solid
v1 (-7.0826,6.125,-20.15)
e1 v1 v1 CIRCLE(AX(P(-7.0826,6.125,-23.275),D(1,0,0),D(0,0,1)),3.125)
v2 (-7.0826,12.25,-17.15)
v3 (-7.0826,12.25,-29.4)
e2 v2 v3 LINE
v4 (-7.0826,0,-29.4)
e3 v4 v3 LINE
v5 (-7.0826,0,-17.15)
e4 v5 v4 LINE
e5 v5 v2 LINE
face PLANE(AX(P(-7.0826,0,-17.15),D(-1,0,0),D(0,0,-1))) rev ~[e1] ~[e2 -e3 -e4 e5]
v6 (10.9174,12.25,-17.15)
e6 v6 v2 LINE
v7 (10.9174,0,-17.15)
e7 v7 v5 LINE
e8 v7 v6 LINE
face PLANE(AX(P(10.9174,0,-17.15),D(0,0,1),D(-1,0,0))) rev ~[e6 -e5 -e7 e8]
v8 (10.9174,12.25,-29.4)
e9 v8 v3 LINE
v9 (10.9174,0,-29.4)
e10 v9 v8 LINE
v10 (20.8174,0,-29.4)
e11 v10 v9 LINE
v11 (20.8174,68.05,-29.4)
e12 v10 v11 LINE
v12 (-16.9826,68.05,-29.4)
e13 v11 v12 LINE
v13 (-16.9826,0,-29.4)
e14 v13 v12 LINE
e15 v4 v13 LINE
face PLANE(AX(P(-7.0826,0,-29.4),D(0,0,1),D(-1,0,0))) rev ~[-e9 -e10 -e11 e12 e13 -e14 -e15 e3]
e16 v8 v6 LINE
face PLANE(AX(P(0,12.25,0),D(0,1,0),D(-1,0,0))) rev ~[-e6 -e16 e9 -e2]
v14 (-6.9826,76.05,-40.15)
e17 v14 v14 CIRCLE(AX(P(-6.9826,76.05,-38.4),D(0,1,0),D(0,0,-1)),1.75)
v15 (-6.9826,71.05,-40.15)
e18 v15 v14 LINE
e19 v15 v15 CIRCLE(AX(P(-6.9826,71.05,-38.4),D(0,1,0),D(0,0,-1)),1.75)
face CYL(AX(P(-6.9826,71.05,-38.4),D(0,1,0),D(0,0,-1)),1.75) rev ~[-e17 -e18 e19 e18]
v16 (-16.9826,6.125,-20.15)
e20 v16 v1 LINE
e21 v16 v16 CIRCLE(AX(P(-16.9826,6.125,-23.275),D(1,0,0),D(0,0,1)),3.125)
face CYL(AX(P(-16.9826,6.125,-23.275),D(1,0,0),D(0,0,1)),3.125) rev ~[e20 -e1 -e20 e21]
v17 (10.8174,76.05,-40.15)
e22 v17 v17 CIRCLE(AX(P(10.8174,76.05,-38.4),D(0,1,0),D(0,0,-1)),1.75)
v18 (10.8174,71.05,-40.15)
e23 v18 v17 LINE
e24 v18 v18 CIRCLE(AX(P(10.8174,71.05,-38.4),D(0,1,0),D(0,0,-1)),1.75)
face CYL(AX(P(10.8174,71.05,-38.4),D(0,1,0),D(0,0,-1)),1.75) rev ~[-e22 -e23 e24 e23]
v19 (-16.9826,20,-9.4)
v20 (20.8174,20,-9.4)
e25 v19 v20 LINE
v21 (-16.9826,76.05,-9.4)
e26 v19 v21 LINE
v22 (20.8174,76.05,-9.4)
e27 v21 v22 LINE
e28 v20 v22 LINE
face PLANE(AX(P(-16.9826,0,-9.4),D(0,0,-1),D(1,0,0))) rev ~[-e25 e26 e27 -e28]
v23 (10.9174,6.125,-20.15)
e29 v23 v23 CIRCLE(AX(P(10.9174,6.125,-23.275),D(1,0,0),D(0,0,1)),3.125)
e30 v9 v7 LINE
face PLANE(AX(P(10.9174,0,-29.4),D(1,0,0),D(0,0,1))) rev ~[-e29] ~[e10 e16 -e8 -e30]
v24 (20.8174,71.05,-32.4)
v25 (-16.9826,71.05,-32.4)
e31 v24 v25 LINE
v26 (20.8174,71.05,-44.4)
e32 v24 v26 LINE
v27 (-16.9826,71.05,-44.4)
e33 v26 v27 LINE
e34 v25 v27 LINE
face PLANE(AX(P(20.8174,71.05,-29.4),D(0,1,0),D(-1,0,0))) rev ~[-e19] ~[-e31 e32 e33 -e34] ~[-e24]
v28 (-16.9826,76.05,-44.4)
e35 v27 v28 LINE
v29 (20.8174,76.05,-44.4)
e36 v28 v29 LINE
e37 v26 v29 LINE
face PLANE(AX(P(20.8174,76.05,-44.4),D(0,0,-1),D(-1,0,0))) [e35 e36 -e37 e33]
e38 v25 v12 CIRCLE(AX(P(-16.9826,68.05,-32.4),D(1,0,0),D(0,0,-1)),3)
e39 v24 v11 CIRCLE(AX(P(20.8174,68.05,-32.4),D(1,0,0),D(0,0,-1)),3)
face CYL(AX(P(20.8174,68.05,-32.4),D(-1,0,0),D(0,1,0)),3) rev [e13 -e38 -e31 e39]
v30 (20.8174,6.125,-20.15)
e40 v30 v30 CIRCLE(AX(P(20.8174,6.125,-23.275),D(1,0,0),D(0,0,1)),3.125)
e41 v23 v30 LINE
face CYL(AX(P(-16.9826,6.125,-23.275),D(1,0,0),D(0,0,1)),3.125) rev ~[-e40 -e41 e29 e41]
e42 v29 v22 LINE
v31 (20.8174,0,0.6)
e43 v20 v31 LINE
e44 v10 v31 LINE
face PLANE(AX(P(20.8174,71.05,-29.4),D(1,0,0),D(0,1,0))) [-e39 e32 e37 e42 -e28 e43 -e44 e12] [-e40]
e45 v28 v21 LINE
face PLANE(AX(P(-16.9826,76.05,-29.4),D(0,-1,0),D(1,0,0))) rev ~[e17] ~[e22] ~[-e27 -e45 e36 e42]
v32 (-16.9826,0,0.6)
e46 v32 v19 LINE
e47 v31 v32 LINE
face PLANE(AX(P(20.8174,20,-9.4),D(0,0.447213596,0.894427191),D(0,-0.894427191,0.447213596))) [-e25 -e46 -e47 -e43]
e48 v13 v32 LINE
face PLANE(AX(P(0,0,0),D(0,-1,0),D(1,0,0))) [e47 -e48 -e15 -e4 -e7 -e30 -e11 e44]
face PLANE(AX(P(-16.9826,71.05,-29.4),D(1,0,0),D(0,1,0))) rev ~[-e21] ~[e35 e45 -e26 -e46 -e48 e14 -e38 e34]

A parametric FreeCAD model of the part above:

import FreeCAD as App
import Part
import Sketcher
from FreeCAD import Vector
Q = App.Units.Quantity


def edges_at(feature, points):
    """Names of the edges that pass closest to the given points."""
    edges = feature.Shape.Edges
    near = lambda p: min(range(len(edges)), key=lambda i: edges[i].distToShape(Part.Vertex(*p))[0])
    return sorted({f"Edge{near(p) + 1}" for p in points})


def add_polygon(sketch, points):
    """Adds a closed chain of lines whose ends are joined by coincident constraints."""
    first, n = sketch.GeometryCount, len(points)
    for a, b in zip(points, points[1:] + points[:1]):
        sketch.addGeometry(Part.LineSegment(App.Vector(*a, 0), App.Vector(*b, 0)), False)
    for i in range(n):
        sketch.addConstraint(Sketcher.Constraint("Coincident", first + i, 2, first + (i + 1) % n, 1))

doc = App.newDocument("Part")
params = doc.addObject("Spreadsheet::Sheet", "Params")
for row, (alias, value) in enumerate([
    ("sketch1_height", "20 mm"),
    ("sketch1_width", "37.8 mm"),
    ("pad1_length", "76.05 mm"),
    ("sketch2_height", "12.25 mm"),
    ("sketch2_width", "18 mm"),
    ("pocket1_length", "12.25 mm"),
    ("sketch3_height", "10 mm"),
    ("sketch3_width", "37.8 mm"),
    ("pad2_length", "20 mm"),
    ("sketch4_height", "10 mm"),
    ("sketch4_width", "20 mm"),
    ("pocket2_length", "50 mm"),
    ("sketch5_height", "5 mm"),
    ("sketch5_width", "37.8 mm"),
    ("pad3_length", "15 mm"),
    ("fillet_radius", "3 mm"),
    ("sketch6_diameter", "6.25 mm"),
    ("hole_diameter", "6.25 mm"),
    ("sketch7_diameter", "3.5 mm"),
    ("hole2_diameter", "3.5 mm"),
], start=1):
    params.set(f"A{row}", alias)
    params.set(f"B{row}", "=" + value)
    params.setAlias(f"B{row}", alias)

body = doc.addObject("PartDesign::Body", "Body")

# Sketch on XZ plane
sketch1 = body.newObject("Sketcher::SketchObject", "Sketch")
sketch1.AttachmentSupport = (doc.getObject("XZ_Plane"), [""])
sketch1.MapMode = "FlatFace"
add_polygon(sketch1, [(-17, -29), (-17, -9), (21, -9), (21, -29)])  # lines 0-3
sketch1.addConstraint(Sketcher.Constraint("Vertical", 0))
sketch1.addConstraint(Sketcher.Constraint("Horizontal", 1))
sketch1.addConstraint(Sketcher.Constraint("Vertical", 2))
sketch1.addConstraint(Sketcher.Constraint("Horizontal", 3))
sketch1.addConstraint(Sketcher.Constraint("DistanceY", 0, 1, 0, 2, Q("20 mm")))
sketch1.addConstraint(Sketcher.Constraint("DistanceX", 1, 1, 1, 2, Q("37.8 mm")))
sketch1.addConstraint(Sketcher.Constraint("DistanceY", 0, 2, -1, 1, Q("9.4 mm")))
sketch1.addConstraint(Sketcher.Constraint("DistanceX", 0, 2, -1, 1, Q("16.9826 mm")))
sketch1.setExpression("Constraints[8]", "Params.sketch1_height")
sketch1.setExpression("Constraints[9]", "Params.sketch1_width")
pad1 = body.newObject("PartDesign::Pad", "Pad")
pad1.Profile = sketch1
pad1.setExpression("Length", "Params.pad1_length")
pad1.Reversed = True

# Sketch on XZ plane
sketch2 = body.newObject("Sketcher::SketchObject", "Sketch001")
sketch2.AttachmentSupport = (doc.getObject("XZ_Plane"), [""])
sketch2.MapMode = "FlatFace"
add_polygon(sketch2, [(11, -29), (-7, -29), (-7, -17), (11, -17)])  # lines 0-3
sketch2.addConstraint(Sketcher.Constraint("Horizontal", 0))
sketch2.addConstraint(Sketcher.Constraint("Vertical", 1))
sketch2.addConstraint(Sketcher.Constraint("Horizontal", 2))
sketch2.addConstraint(Sketcher.Constraint("Vertical", 3))
sketch2.addConstraint(Sketcher.Constraint("DistanceY", 1, 1, 1, 2, Q("12.25 mm")))
sketch2.addConstraint(Sketcher.Constraint("DistanceX", 0, 2, 0, 1, Q("18 mm")))
sketch2.addConstraint(Sketcher.Constraint("DistanceY", 0, 2, -1, 1, Q("29.4 mm")))
sketch2.addConstraint(Sketcher.Constraint("DistanceX", 0, 2, -1, 1, Q("7.0826 mm")))
sketch2.setExpression("Constraints[8]", "Params.sketch2_height")
sketch2.setExpression("Constraints[9]", "Params.sketch2_width")
pocket1 = body.newObject("PartDesign::Pocket", "Pocket")
pocket1.Profile = sketch2
pocket1.setExpression("Length", "Params.pocket1_length")

# Sketch on XZ plane
sketch3 = body.newObject("Sketcher::SketchObject", "Sketch002")
sketch3.AttachmentSupport = (doc.getObject("XZ_Plane"), [""])
sketch3.MapMode = "FlatFace"
add_polygon(sketch3, [(-17, 1), (-17, -9), (21, -9), (21, 1)])  # lines 0-3
sketch3.addConstraint(Sketcher.Constraint("Vertical", 0))
sketch3.addConstraint(Sketcher.Constraint("Horizontal", 1))
sketch3.addConstraint(Sketcher.Constraint("Vertical", 2))
sketch3.addConstraint(Sketcher.Constraint("Horizontal", 3))
sketch3.addConstraint(Sketcher.Constraint("DistanceY", 0, 2, 0, 1, Q("10 mm")))
sketch3.addConstraint(Sketcher.Constraint("DistanceX", 1, 1, 1, 2, Q("37.8 mm")))
sketch3.addConstraint(Sketcher.Constraint("DistanceY", 0, 2, -1, 1, Q("9.4 mm")))
sketch3.addConstraint(Sketcher.Constraint("DistanceX", 0, 2, -1, 1, Q("16.9826 mm")))
sketch3.setExpression("Constraints[8]", "Params.sketch3_height")
sketch3.setExpression("Constraints[9]", "Params.sketch3_width")
pad2 = body.newObject("PartDesign::Pad", "Pad001")
pad2.Profile = sketch3
pad2.setExpression("Length", "Params.pad2_length")
pad2.Reversed = True

# Sketch on YZ plane
sketch4 = body.newObject("Sketcher::SketchObject", "Sketch003")
sketch4.AttachmentSupport = (doc.getObject("YZ_Plane"), [""])
sketch4.MapMode = "FlatFace"
sketch4.AttachmentOffset = App.Placement(Vector(0, 0, 20.8174), App.Rotation())
add_polygon(sketch4, [(20, 1), (0, 1), (20, -9)])  # lines 0-2
sketch4.addConstraint(Sketcher.Constraint("Horizontal", 0))
sketch4.addConstraint(Sketcher.Constraint("Vertical", 2))
sketch4.addConstraint(Sketcher.Constraint("PointOnObject", 0, 2, -2))
sketch4.addConstraint(Sketcher.Constraint("DistanceY", 2, 1, 2, 2, Q("10 mm")))
sketch4.addConstraint(Sketcher.Constraint("DistanceX", 0, 2, 0, 1, Q("20 mm")))
sketch4.addConstraint(Sketcher.Constraint("DistanceY", -1, 1, 0, 2, Q("0.6 mm")))
sketch4.setExpression("Constraints[6]", "Params.sketch4_height")
sketch4.setExpression("Constraints[7]", "Params.sketch4_width")
pocket2 = body.newObject("PartDesign::Pocket", "Pocket001")
pocket2.Profile = sketch4
pocket2.setExpression("Length", "Params.pocket2_length")

# Sketch on XY plane
sketch5 = body.newObject("Sketcher::SketchObject", "Sketch004")
sketch5.AttachmentSupport = (doc.getObject("XY_Plane"), [""])
sketch5.MapMode = "FlatFace"
sketch5.AttachmentOffset = App.Placement(Vector(0, 0, -29.4), App.Rotation())
add_polygon(sketch5, [(21, 76), (21, 71), (-17, 71), (-17, 76)])  # lines 0-3
sketch5.addConstraint(Sketcher.Constraint("Vertical", 0))
sketch5.addConstraint(Sketcher.Constraint("Horizontal", 1))
sketch5.addConstraint(Sketcher.Constraint("Vertical", 2))
sketch5.addConstraint(Sketcher.Constraint("Horizontal", 3))
sketch5.addConstraint(Sketcher.Constraint("DistanceY", 0, 2, 0, 1, Q("5 mm")))
sketch5.addConstraint(Sketcher.Constraint("DistanceX", 1, 2, 1, 1, Q("37.8 mm")))
sketch5.addConstraint(Sketcher.Constraint("DistanceY", -1, 1, 0, 2, Q("71.05 mm")))
sketch5.addConstraint(Sketcher.Constraint("DistanceX", -1, 1, 0, 2, Q("20.8174 mm")))
sketch5.setExpression("Constraints[8]", "Params.sketch5_height")
sketch5.setExpression("Constraints[9]", "Params.sketch5_width")
pad3 = body.newObject("PartDesign::Pad", "Pad002")
pad3.Profile = sketch5
pad3.setExpression("Length", "Params.pad3_length")
pad3.Reversed = True
doc.recompute()

fillet = body.newObject("PartDesign::Fillet", "Fillet")
fillet.Base = (pad3, edges_at(pad3, [(1.917, 71.05, -29.4)]))
fillet.setExpression("Radius", "Params.fillet_radius")

# Sketch on YZ plane
sketch6 = body.newObject("Sketcher::SketchObject", "Sketch005")
sketch6.AttachmentSupport = (doc.getObject("YZ_Plane"), [""])
sketch6.MapMode = "FlatFace"
sketch6.AttachmentOffset = App.Placement(Vector(0, 0, -16.9826), App.Rotation())
sketch6.addGeometry(Part.Circle(Vector(6.1, -23.3, 0), Vector(0, 0, 1), 3.1), False)
sketch6.addConstraint(Sketcher.Constraint("Diameter", 0, Q("6.25 mm")))
sketch6.addConstraint(Sketcher.Constraint("DistanceX", -1, 1, 0, 3, Q("6.125 mm")))
sketch6.addConstraint(Sketcher.Constraint("DistanceY", 0, 3, -1, 1, Q("23.275 mm")))
sketch6.setExpression("Constraints[0]", "Params.sketch6_diameter")
doc.recompute()
hole = body.newObject("PartDesign::Hole", "Hole")
hole.Profile = sketch6
hole.ThreadType = "None"
hole.setExpression("Diameter", "Params.hole_diameter")
hole.DepthType = "ThroughAll"
hole.Reversed = True

# Sketch on XZ plane
sketch7 = body.newObject("Sketcher::SketchObject", "Sketch006")
sketch7.AttachmentSupport = (doc.getObject("XZ_Plane"), [""])
sketch7.MapMode = "FlatFace"
sketch7.AttachmentOffset = App.Placement(Vector(0, 0, -71.05), App.Rotation())
sketch7.addGeometry(Part.Circle(Vector(-7, -38.4, 0), Vector(0, 0, 1), 1.8), False)
sketch7.addGeometry(Part.Circle(Vector(10.8, -38.4, 0), Vector(0, 0, 1), 1.8), False)
sketch7.addConstraint(Sketcher.Constraint("Equal", 0, 1))
sketch7.addConstraint(Sketcher.Constraint("Horizontal", 0, 3, 1, 3))
sketch7.addConstraint(Sketcher.Constraint("Diameter", 0, Q("3.5 mm")))
sketch7.addConstraint(Sketcher.Constraint("DistanceY", 0, 3, -1, 1, Q("38.4 mm")))
sketch7.addConstraint(Sketcher.Constraint("DistanceX", 0, 3, 1, 3, Q("17.8 mm")))
sketch7.addConstraint(Sketcher.Constraint("DistanceX", 0, 3, -1, 1, Q("6.9826 mm")))
sketch7.setExpression("Constraints[2]", "Params.sketch7_diameter")
doc.recompute()
hole2 = body.newObject("PartDesign::Hole", "Hole001")
hole2.Profile = sketch7
hole2.ThreadType = "None"
hole2.setExpression("Diameter", "Params.hole2_diameter")
hole2.DepthType = "ThroughAll"

doc.recompute()
